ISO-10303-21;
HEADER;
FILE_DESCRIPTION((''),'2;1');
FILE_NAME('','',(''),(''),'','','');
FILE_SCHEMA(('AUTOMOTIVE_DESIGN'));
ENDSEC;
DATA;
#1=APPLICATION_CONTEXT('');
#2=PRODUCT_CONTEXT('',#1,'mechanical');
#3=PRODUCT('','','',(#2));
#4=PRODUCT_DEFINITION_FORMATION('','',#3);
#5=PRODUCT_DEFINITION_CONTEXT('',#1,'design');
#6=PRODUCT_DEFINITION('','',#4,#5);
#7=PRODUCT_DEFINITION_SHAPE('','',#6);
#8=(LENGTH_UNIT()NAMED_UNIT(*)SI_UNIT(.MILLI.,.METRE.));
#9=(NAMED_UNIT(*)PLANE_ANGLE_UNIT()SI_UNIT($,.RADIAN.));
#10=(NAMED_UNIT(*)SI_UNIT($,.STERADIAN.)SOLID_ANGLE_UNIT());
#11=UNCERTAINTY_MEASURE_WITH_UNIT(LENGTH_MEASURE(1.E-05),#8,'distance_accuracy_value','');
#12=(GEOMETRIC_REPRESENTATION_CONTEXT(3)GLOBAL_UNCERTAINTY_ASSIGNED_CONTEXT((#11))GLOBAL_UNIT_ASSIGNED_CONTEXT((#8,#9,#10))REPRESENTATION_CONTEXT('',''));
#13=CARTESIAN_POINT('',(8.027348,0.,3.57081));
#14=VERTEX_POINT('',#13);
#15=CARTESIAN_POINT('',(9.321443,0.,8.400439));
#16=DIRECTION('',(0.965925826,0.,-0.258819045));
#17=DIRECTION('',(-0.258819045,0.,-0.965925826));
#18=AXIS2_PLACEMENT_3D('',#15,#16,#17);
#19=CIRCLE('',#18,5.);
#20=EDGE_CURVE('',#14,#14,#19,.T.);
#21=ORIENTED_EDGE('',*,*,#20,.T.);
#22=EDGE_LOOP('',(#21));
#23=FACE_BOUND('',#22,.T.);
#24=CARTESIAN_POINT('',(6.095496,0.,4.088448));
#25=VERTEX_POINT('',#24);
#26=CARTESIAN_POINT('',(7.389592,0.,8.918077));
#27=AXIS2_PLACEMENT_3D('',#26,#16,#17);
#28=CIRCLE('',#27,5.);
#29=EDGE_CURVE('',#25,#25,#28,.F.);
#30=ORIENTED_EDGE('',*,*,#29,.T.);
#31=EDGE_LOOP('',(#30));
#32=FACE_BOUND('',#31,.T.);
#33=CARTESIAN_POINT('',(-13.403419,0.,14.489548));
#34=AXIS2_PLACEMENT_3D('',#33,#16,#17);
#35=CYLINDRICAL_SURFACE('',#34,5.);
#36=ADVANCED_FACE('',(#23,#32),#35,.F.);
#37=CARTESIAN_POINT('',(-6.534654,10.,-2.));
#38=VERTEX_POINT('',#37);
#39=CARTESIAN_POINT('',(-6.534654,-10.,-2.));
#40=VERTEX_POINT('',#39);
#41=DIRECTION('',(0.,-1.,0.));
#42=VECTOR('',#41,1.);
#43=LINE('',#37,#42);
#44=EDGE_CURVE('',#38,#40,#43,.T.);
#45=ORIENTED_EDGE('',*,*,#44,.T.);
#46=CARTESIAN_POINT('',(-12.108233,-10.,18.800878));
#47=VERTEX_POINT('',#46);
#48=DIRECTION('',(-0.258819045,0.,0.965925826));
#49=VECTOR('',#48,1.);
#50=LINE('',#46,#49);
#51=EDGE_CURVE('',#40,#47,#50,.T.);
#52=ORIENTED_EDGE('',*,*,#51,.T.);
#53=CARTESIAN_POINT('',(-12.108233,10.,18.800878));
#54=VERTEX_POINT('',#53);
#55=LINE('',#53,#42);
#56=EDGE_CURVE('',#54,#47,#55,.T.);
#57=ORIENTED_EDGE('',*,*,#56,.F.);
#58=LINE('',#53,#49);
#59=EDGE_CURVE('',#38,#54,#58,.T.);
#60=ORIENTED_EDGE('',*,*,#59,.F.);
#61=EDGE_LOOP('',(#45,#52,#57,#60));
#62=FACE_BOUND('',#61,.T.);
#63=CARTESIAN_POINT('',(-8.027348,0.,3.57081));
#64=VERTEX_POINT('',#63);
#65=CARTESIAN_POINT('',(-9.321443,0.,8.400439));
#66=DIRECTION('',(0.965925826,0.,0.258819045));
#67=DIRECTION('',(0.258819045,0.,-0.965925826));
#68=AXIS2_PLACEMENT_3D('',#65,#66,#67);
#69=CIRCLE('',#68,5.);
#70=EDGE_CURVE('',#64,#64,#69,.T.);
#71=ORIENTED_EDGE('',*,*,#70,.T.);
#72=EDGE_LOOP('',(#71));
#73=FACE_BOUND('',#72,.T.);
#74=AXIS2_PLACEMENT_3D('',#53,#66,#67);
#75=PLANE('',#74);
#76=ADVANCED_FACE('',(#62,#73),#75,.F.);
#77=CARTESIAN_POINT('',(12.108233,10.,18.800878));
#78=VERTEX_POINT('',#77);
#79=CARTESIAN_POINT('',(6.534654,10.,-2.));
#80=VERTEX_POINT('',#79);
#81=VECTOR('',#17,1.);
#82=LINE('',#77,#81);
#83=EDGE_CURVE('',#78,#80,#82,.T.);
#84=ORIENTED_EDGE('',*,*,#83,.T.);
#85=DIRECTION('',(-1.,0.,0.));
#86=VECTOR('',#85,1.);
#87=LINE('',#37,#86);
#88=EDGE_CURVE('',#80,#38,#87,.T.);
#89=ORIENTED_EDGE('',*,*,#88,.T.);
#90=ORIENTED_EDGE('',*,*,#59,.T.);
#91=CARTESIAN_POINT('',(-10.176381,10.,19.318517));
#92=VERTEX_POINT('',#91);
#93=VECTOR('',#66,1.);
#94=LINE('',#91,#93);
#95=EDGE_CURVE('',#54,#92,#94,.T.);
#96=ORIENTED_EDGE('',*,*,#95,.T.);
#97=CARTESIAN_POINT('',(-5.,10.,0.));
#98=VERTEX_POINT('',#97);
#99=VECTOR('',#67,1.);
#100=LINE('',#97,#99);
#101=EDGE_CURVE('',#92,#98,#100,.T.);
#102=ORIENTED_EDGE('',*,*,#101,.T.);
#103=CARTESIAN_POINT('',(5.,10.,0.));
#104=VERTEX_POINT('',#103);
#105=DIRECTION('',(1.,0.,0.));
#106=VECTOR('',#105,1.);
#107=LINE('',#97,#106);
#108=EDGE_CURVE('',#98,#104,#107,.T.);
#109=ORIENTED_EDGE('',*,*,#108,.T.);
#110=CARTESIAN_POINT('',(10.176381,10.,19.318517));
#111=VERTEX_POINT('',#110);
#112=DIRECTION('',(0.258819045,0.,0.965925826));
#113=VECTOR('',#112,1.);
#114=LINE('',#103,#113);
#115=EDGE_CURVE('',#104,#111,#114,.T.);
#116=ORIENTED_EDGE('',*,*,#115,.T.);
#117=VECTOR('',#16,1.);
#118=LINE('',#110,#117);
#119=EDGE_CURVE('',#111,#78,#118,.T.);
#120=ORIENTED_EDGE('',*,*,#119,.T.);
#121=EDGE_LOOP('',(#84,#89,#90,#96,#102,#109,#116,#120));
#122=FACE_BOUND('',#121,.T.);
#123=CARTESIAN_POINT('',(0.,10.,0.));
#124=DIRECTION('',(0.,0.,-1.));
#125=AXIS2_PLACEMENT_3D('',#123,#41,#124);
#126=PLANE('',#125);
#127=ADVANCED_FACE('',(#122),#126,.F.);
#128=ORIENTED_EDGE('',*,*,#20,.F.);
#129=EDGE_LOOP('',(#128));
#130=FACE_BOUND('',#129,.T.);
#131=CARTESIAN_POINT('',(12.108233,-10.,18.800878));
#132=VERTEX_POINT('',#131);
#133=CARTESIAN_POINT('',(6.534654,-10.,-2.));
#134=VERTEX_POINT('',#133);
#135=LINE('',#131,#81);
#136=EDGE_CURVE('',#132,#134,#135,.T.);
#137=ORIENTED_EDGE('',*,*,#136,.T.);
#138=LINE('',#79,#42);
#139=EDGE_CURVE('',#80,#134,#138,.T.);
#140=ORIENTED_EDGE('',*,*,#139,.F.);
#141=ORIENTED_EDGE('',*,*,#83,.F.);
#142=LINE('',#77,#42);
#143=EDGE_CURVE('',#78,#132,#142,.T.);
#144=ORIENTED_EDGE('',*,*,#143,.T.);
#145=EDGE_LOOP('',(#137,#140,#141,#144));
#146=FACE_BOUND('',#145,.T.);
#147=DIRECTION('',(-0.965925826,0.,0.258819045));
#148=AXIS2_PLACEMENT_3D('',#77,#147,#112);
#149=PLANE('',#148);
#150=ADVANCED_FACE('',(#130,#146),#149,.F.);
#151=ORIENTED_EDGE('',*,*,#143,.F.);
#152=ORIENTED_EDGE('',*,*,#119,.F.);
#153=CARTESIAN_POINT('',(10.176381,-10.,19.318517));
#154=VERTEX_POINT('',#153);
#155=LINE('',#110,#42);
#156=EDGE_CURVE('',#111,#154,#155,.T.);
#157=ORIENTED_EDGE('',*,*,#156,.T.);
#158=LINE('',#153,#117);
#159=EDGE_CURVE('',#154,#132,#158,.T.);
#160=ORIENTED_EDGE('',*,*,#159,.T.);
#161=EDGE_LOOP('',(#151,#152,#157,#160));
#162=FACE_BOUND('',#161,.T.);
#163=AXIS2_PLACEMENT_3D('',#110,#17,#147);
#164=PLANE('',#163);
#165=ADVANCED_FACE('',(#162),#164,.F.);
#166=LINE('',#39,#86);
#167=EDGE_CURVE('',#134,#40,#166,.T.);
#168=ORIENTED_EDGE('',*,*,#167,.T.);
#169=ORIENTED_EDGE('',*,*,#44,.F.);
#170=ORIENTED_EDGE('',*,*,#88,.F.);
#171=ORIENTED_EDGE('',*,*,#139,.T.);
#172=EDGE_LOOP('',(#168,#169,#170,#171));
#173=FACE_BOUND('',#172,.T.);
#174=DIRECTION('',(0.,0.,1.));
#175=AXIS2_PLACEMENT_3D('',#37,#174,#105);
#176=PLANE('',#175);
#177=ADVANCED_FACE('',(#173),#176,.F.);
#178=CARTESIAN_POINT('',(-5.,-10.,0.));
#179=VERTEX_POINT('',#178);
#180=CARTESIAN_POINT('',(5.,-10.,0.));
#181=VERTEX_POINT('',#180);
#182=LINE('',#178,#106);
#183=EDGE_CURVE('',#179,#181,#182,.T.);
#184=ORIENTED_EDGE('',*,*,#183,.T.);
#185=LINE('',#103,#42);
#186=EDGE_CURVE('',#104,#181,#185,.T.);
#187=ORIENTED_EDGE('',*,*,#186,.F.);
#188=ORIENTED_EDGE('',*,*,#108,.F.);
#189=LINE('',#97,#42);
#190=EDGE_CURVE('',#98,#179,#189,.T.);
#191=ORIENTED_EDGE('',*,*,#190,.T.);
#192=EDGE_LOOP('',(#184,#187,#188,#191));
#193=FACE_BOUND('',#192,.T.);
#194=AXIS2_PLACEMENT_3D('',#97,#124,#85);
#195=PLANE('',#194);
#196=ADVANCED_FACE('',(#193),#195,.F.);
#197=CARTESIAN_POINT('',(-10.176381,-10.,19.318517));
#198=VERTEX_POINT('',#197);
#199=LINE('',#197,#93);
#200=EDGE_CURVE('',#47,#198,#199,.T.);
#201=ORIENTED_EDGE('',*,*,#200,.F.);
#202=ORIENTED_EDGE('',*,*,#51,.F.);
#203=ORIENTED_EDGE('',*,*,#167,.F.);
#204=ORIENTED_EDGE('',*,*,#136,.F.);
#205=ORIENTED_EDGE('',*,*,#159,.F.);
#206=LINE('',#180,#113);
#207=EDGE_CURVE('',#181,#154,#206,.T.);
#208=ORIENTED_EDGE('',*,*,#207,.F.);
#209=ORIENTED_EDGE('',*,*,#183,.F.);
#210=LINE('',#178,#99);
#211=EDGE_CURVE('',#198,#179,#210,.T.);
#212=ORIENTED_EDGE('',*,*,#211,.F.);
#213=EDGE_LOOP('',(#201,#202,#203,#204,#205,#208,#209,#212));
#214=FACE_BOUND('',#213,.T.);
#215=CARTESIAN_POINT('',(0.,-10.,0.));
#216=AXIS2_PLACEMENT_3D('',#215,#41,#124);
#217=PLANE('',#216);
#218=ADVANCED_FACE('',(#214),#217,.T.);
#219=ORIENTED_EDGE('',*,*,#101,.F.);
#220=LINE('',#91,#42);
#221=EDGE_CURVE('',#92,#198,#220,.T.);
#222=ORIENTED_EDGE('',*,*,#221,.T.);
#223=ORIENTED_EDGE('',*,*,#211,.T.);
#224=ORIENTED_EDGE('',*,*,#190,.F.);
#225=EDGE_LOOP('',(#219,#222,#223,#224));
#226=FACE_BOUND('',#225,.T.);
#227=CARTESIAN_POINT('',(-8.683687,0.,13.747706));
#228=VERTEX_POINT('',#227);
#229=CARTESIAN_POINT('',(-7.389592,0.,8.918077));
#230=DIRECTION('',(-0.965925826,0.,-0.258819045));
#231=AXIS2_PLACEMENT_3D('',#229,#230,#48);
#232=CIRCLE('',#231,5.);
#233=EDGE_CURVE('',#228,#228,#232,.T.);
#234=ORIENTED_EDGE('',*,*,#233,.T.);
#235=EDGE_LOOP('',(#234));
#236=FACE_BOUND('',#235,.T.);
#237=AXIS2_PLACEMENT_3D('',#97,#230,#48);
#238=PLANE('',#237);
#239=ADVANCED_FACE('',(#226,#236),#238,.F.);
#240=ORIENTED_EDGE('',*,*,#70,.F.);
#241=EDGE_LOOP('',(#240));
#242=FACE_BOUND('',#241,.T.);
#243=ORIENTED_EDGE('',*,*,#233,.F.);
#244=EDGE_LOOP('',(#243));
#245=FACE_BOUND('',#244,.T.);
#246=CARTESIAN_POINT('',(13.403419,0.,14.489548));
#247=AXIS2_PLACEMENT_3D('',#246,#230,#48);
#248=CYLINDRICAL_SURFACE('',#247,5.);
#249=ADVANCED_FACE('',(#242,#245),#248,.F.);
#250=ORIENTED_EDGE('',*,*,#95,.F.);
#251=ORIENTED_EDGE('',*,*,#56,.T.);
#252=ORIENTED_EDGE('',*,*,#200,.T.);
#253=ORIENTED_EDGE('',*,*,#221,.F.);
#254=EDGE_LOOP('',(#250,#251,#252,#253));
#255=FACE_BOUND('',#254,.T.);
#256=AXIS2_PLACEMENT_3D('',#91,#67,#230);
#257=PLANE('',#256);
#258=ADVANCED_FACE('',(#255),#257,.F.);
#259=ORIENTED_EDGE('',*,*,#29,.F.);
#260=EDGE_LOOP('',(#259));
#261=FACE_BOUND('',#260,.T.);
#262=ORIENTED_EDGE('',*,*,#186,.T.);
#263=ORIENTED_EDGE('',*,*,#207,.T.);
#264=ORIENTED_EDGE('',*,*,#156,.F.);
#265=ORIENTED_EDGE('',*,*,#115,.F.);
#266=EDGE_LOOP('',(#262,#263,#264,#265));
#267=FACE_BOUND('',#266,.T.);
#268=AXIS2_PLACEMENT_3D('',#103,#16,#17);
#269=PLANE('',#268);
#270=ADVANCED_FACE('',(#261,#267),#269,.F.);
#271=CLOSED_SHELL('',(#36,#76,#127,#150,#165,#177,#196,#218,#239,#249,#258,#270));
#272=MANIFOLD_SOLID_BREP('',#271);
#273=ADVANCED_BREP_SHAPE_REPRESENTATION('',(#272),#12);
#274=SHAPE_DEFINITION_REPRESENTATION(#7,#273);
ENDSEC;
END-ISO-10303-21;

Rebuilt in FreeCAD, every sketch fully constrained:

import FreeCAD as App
import Part
import Sketcher
Q = App.Units.Quantity


def add_polygon(sketch, points):
    """Adds a closed chain of lines whose ends are joined by coincident constraints."""
    first, n = sketch.GeometryCount, len(points)
    for a, b in zip(points, points[1:] + points[:1]):
        sketch.addGeometry(Part.LineSegment(App.Vector(*a, 0), App.Vector(*b, 0)), False)
    for i in range(n):
        sketch.addConstraint(Sketcher.Constraint("Coincident", first + i, 2, first + (i + 1) % n, 1))

doc = App.newDocument("Part")
body = doc.addObject("PartDesign::Body", "Body")

sketch1 = body.newObject("Sketcher::SketchObject", "Sketch")
sketch1.AttachmentSupport = (doc.getObject("XZ_Plane"), [""])
sketch1.MapMode = "FlatFace"
add_polygon(sketch1, [(-10.2, 19.3), (-5, 0), (5, 0), (10.2, 19.3), (12.1, 18.8), (6.5, -2), (-6.5, -2), (-12.1, 18.8)])
sketch1.addConstraint(Sketcher.Constraint("Horizontal", 1))
sketch1.addConstraint(Sketcher.Constraint("Horizontal", 5))
sketch1.addConstraint(Sketcher.Constraint("Symmetric", 0, 2, 1, 2, -1, 1))
sketch1.addConstraint(Sketcher.Constraint("Symmetric", 3, 2, 6, 2, -2))
sketch1.addConstraint(Sketcher.Constraint("Symmetric", 2, 2, 7, 2, -2))
sketch1.addConstraint(Sketcher.Constraint("Perpendicular", 2, 3))
sketch1.addConstraint(Sketcher.Constraint("Perpendicular", 3, 4))
sketch1.addConstraint(Sketcher.Constraint("Parallel", 0, 6))
sketch1.addConstraint(Sketcher.Constraint("DistanceX", 1, 1, 1, 2, 10.0))
sketch1.addConstraint(Sketcher.Constraint("Angle", 0, Q("-75 deg")))
sketch1.addConstraint(Sketcher.Constraint("Distance", 0, 20.0))
sketch1.addConstraint(Sketcher.Constraint("Distance", 3, 2.0))
sketch1.addConstraint(Sketcher.Constraint("DistanceY", 4, 2, -1, 1, 2.0))
pad1 = body.newObject("PartDesign::Pad", "Pad")
pad1.Profile = sketch1
pad1.Length = 20
pad1.Midplane = True

sketch2 = body.newObject("Sketcher::SketchObject", "Sketch001")
sketch2.Placement = App.Placement(App.Vector(6.596915, 0, -1.767638), App.Rotation(App.Vector(-0.258819045, 0, -0.965925826), App.Vector(0, 0.999999999, 0), App.Vector(0.965925826, 0, -0.258819045), "ZXY"))
sketch2.addGeometry(Part.Circle(App.Vector(-11, 0, 0), App.Vector(0, 0, 1), 5), False)
sketch2.addConstraint(Sketcher.Constraint("PointOnObject", 0, 3, -1))
sketch2.addConstraint(Sketcher.Constraint("Diameter", 0, 10.0))
sketch2.addConstraint(Sketcher.Constraint("DistanceX", 0, 3, -1, 1, 10.526768))
pocket1 = body.newObject("PartDesign::Pocket", "Pocket")
pocket1.Profile = sketch2
pocket1.Length = 2
doc.recompute()

mirrored = body.newObject("PartDesign::Mirrored", "Mirrored")
mirrored.Originals = [pocket1]
mirrored.MirrorPlane = (doc.getObject("YZ_Plane"), [""])
body.Tip = mirrored

doc.recompute()
